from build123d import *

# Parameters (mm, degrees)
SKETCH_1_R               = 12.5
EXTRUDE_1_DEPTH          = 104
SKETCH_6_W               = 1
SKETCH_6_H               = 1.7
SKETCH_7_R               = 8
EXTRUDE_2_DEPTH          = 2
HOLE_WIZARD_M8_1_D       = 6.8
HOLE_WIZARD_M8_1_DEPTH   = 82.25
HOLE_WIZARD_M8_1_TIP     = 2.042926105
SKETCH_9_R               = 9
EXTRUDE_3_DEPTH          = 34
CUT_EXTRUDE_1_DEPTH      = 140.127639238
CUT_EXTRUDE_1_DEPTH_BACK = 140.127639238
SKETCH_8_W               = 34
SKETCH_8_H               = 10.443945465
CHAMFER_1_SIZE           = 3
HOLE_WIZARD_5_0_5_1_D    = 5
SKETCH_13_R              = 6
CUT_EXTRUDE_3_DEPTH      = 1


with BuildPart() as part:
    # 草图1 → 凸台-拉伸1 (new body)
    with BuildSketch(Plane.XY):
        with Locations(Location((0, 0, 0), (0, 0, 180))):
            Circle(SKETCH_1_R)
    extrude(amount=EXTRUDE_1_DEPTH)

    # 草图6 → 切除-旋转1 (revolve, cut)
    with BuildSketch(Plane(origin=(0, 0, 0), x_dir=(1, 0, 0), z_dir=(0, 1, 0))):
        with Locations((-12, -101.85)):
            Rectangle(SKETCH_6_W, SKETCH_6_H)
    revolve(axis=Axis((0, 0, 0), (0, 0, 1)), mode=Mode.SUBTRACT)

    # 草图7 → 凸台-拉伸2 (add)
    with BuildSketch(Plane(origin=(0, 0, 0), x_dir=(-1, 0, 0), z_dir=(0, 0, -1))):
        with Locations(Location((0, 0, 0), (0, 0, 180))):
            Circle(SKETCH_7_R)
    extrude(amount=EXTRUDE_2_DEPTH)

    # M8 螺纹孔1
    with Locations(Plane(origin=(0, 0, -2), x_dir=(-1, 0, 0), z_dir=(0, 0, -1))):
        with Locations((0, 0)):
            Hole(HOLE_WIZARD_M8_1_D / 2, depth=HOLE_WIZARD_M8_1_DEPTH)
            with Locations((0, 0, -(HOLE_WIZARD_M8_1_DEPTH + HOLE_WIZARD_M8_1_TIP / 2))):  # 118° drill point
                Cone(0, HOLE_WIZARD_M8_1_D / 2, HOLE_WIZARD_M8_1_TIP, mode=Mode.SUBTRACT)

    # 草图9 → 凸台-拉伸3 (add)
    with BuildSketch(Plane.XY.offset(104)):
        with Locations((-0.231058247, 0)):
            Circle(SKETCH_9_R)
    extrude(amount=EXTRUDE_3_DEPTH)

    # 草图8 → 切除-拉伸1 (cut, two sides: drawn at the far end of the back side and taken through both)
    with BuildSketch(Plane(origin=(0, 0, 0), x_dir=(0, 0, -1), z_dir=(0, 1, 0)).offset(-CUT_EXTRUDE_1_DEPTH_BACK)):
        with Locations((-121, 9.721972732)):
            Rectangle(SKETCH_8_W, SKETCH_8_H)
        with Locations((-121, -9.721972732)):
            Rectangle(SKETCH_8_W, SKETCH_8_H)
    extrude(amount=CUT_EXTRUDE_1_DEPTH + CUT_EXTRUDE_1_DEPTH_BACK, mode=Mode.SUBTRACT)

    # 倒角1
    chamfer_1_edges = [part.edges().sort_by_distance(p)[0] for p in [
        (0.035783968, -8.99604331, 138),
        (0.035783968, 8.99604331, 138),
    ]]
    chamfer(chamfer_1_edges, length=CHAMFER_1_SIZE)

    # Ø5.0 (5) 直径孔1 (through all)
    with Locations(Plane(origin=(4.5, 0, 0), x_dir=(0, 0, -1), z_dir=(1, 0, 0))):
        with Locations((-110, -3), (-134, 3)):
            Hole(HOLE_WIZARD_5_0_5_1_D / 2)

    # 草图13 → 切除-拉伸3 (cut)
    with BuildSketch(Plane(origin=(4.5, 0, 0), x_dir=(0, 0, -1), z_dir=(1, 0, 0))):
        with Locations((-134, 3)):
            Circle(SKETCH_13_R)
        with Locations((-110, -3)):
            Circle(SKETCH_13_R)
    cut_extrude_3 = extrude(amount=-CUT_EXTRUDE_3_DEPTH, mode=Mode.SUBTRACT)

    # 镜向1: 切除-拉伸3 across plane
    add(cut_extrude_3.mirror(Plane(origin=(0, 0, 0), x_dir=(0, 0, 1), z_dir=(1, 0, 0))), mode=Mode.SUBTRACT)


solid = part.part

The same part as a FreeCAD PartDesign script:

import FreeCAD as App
import Part
import Sketcher
Q = App.Units.Quantity


def edges_at(feature, points):
    """Names of the edges that pass closest to the given points."""
    edges = feature.Shape.Edges
    near = lambda p: min(range(len(edges)), key=lambda i: edges[i].distToShape(Part.Vertex(*p))[0])
    return sorted({f"Edge{near(p) + 1}" for p in points})

doc = App.newDocument("Part")
body = doc.addObject("PartDesign::Body", "Body")

# Sketch on XY plane
sketch1 = doc.addObject("Sketcher::SketchObject", "Sketch")
body.addObject(sketch1)
sketch1.AttachmentSupport = (doc.XY_Plane, [""])
sketch1.MapMode = "FlatFace"
sketch1.addGeometry(Part.Circle(App.Vector(0, 0, 0), App.Vector(0, 0, 1), 12), False)
sketch1.addConstraint([
    Sketcher.Constraint("Coincident", 0, 3, -1, 1),
    Sketcher.Constraint("Diameter", 0, Q("25 mm")),
])
pad1 = doc.addObject("PartDesign::Pad", "Pad")
body.addObject(pad1)
pad1.Profile = sketch1
pad1.Length = 104

# Sketch on XZ plane
sketch2 = doc.addObject("Sketcher::SketchObject", "Sketch001")
body.addObject(sketch2)
sketch2.AttachmentSupport = (doc.XZ_Plane, [""])
sketch2.MapMode = "FlatFace"
sketch2.addGeometry([
    Part.LineSegment(App.Vector(-12.5, 101, 0), App.Vector(-12.5, 102.7, 0)),
    Part.LineSegment(App.Vector(-12.5, 102.7, 0), App.Vector(-11.5, 102.7, 0)),
    Part.LineSegment(App.Vector(-11.5, 102.7, 0), App.Vector(-11.5, 101, 0)),
    Part.LineSegment(App.Vector(-11.5, 101, 0), App.Vector(-12.5, 101, 0)),
], False)
sketch2.addConstraint([
    Sketcher.Constraint("Coincident", 0, 2, 1, 1),
    Sketcher.Constraint("Coincident", 1, 2, 2, 1),
    Sketcher.Constraint("Coincident", 2, 2, 3, 1),
    Sketcher.Constraint("Coincident", 3, 2, 0, 1),
    Sketcher.Constraint("Vertical", 0),
    Sketcher.Constraint("Horizontal", 1),
    Sketcher.Constraint("Vertical", 2),
    Sketcher.Constraint("Horizontal", 3),
    Sketcher.Constraint("DistanceX", 1, 1, 1, 2, Q("1 mm")),
    Sketcher.Constraint("DistanceY", 0, 1, 0, 2, Q("1.7 mm")),
    Sketcher.Constraint("DistanceY", -1, 1, 2, 2, Q("101 mm")),
    Sketcher.Constraint("DistanceX", 0, 2, -1, 1, Q("12.5 mm")),
])
groove = doc.addObject("PartDesign::Groove", "Groove")
body.addObject(groove)
groove.Profile = sketch2
groove.ReferenceAxis = (sketch2, ["V_Axis"])
groove.Angle = 360

# Sketch on XY plane
sketch3 = doc.addObject("Sketcher::SketchObject", "Sketch002")
body.addObject(sketch3)
sketch3.AttachmentSupport = (doc.XY_Plane, [""])
sketch3.MapMode = "FlatFace"
sketch3.addGeometry(Part.Circle(App.Vector(0, 0, 0), App.Vector(0, 0, 1), 8), False)
sketch3.addConstraint([
    Sketcher.Constraint("Coincident", 0, 3, -1, 1),
    Sketcher.Constraint("Diameter", 0, Q("16 mm")),
])
pad2 = doc.addObject("PartDesign::Pad", "Pad001")
body.addObject(pad2)
pad2.Profile = sketch3
pad2.Length = 2
pad2.Reversed = True

# Sketch on XY plane
sketch4 = doc.addObject("Sketcher::SketchObject", "Sketch003")
body.addObject(sketch4)
sketch4.AttachmentSupport = (doc.XY_Plane, [""])
sketch4.MapMode = "FlatFace"
sketch4.AttachmentOffset = App.Placement(App.Vector(0, 0, -2), App.Rotation())
sketch4.addGeometry(Part.Circle(App.Vector(0, 0, 0), App.Vector(0, 0, 1), 3.4), False)
sketch4.addConstraint([
    Sketcher.Constraint("Coincident", 0, 3, -1, 1),
    Sketcher.Constraint("Diameter", 0, Q("6.8 mm")),
])
doc.recompute()
hole = doc.addObject("PartDesign::Hole", "Hole")
body.addObject(hole)
hole.Profile = sketch4
hole.ThreadType = "None"
hole.Diameter = 6.8
hole.DepthType = "Dimension"
hole.Depth = 82.25
hole.DrillPoint = "Angled"
hole.DrillPointAngle = 118
hole.Reversed = True

# Sketch on XY plane
sketch5 = doc.addObject("Sketcher::SketchObject", "Sketch004")
body.addObject(sketch5)
sketch5.AttachmentSupport = (doc.XY_Plane, [""])
sketch5.MapMode = "FlatFace"
sketch5.AttachmentOffset = App.Placement(App.Vector(0, 0, 104), App.Rotation())
sketch5.addGeometry(Part.Circle(App.Vector(0, 0, 0), App.Vector(0, 0, 1), 9), False)
sketch5.addConstraint([
    Sketcher.Constraint("PointOnObject", 0, 3, -1),
    Sketcher.Constraint("Diameter", 0, Q("18 mm")),
    Sketcher.Constraint("DistanceX", 0, 3, -1, 1, Q("0.231058 mm")),
])
pad3 = doc.addObject("PartDesign::Pad", "Pad002")
body.addObject(pad3)
pad3.Profile = sketch5
pad3.Length = 34

# Sketch on XZ plane
sketch6 = doc.addObject("Sketcher::SketchObject", "Sketch005")
body.addObject(sketch6)
sketch6.AttachmentSupport = (doc.XZ_Plane, [""])
sketch6.MapMode = "FlatFace"
sketch6.addGeometry([
    Part.LineSegment(App.Vector(-15, 138, 0), App.Vector(-4, 138, 0)),  # 0
    Part.LineSegment(App.Vector(-4, 138, 0), App.Vector(-4, 104, 0)),  # 1
    Part.LineSegment(App.Vector(-4, 104, 0), App.Vector(-15, 104, 0)),  # 2
    Part.LineSegment(App.Vector(-15, 104, 0), App.Vector(-15, 138, 0)),  # 3
    Part.LineSegment(App.Vector(4, 138, 0), App.Vector(15, 138, 0)),  # 4
    Part.LineSegment(App.Vector(15, 138, 0), App.Vector(15, 104, 0)),  # 5
    Part.LineSegment(App.Vector(15, 104, 0), App.Vector(4, 104, 0)),  # 6
    Part.LineSegment(App.Vector(4, 104, 0), App.Vector(4, 138, 0)),  # 7
], False)
sketch6.addConstraint([
    Sketcher.Constraint("Coincident", 0, 2, 1, 1),
    Sketcher.Constraint("Coincident", 1, 2, 2, 1),
    Sketcher.Constraint("Coincident", 2, 2, 3, 1),
    Sketcher.Constraint("Coincident", 3, 2, 0, 1),
    Sketcher.Constraint("Coincident", 4, 2, 5, 1),
    Sketcher.Constraint("Coincident", 5, 2, 6, 1),
    Sketcher.Constraint("Coincident", 6, 2, 7, 1),
    Sketcher.Constraint("Coincident", 7, 2, 4, 1),
    Sketcher.Constraint("Horizontal", 0),
    Sketcher.Constraint("Vertical", 1),
    Sketcher.Constraint("Horizontal", 2),
    Sketcher.Constraint("Vertical", 3),
    Sketcher.Constraint("Horizontal", 4),
    Sketcher.Constraint("Vertical", 5),
    Sketcher.Constraint("Horizontal", 6),
    Sketcher.Constraint("Vertical", 7),
    Sketcher.Constraint("Symmetric", 3, 2, 4, 2, -2),
    Sketcher.Constraint("Symmetric", 1, 2, 6, 2, -2),
    Sketcher.Constraint("DistanceY", 1, 2, 1, 1, Q("34 mm")),
    Sketcher.Constraint("DistanceY", -1, 1, 0, 2, Q("138 mm")),
    Sketcher.Constraint("DistanceX", 1, 2, 6, 2, Q("9 mm")),
    Sketcher.Constraint("DistanceX", 0, 1, 0, 2, Q("10.443945 mm")),
])
pocket1 = doc.addObject("PartDesign::Pocket", "Pocket")
body.addObject(pocket1)
pocket1.Profile = sketch6
pocket1.Type = "ThroughAll"
pocket1.Midplane = True
doc.recompute()

chamfer = doc.addObject("PartDesign::Chamfer", "Chamfer")
body.addObject(chamfer)
chamfer.Base = (pocket1, edges_at(pocket1, [(0.036, -8.996, 138), (0.036, 8.996, 138)]))
chamfer.Size = 3

# Sketch on YZ plane
sketch7 = doc.addObject("Sketcher::SketchObject", "Sketch006")
body.addObject(sketch7)
sketch7.AttachmentSupport = (doc.YZ_Plane, [""])
sketch7.MapMode = "FlatFace"
sketch7.AttachmentOffset = App.Placement(App.Vector(0, 0, 4.5), App.Rotation())
sketch7.addGeometry([
    Part.Circle(App.Vector(-3, 110, 0), App.Vector(0, 0, 1), 2.5),
    Part.Circle(App.Vector(3, 134, 0), App.Vector(0, 0, 1), 2.5),
], False)
sketch7.addConstraint([
    Sketcher.Constraint("Equal", 0, 1),
    Sketcher.Constraint("Diameter", 0, Q("5 mm")),
    Sketcher.Constraint("DistanceX", 0, 3, -1, 1, Q("3 mm")),
    Sketcher.Constraint("DistanceY", -1, 1, 0, 3, Q("110 mm")),
    Sketcher.Constraint("DistanceX", -1, 1, 1, 3, Q("3 mm")),
    Sketcher.Constraint("DistanceY", -1, 1, 1, 3, Q("134 mm")),
])
doc.recompute()
hole2 = doc.addObject("PartDesign::Hole", "Hole001")
body.addObject(hole2)
hole2.Profile = sketch7
hole2.ThreadType = "None"
hole2.Diameter = 5
hole2.DepthType = "ThroughAll"

# Sketch on YZ plane
sketch8 = doc.addObject("Sketcher::SketchObject", "Sketch007")
body.addObject(sketch8)
sketch8.AttachmentSupport = (doc.YZ_Plane, [""])
sketch8.MapMode = "FlatFace"
sketch8.AttachmentOffset = App.Placement(App.Vector(0, 0, 4.5), App.Rotation())
sketch8.addGeometry([
    Part.Circle(App.Vector(3, 134, 0), App.Vector(0, 0, 1), 6),
    Part.Circle(App.Vector(-3, 110, 0), App.Vector(0, 0, 1), 6),
], False)
sketch8.addConstraint([
    Sketcher.Constraint("Equal", 0, 1),
    Sketcher.Constraint("Diameter", 0, Q("12 mm")),
    Sketcher.Constraint("DistanceX", -1, 1, 0, 3, Q("3 mm")),
    Sketcher.Constraint("DistanceY", -1, 1, 0, 3, Q("134 mm")),
    Sketcher.Constraint("DistanceX", 1, 3, -1, 1, Q("3 mm")),
    Sketcher.Constraint("DistanceY", -1, 1, 1, 3, Q("110 mm")),
])
pocket2 = doc.addObject("PartDesign::Pocket", "Pocket001")
body.addObject(pocket2)
pocket2.Profile = sketch8
pocket2.Length = 1
doc.recompute()

mirrored = doc.addObject("PartDesign::Mirrored", "Mirrored")
body.addObject(mirrored)
mirrored.Originals = [pocket2]
mirrored.MirrorPlane = (doc.YZ_Plane, [""])
body.Tip = mirrored

doc.recompute()
